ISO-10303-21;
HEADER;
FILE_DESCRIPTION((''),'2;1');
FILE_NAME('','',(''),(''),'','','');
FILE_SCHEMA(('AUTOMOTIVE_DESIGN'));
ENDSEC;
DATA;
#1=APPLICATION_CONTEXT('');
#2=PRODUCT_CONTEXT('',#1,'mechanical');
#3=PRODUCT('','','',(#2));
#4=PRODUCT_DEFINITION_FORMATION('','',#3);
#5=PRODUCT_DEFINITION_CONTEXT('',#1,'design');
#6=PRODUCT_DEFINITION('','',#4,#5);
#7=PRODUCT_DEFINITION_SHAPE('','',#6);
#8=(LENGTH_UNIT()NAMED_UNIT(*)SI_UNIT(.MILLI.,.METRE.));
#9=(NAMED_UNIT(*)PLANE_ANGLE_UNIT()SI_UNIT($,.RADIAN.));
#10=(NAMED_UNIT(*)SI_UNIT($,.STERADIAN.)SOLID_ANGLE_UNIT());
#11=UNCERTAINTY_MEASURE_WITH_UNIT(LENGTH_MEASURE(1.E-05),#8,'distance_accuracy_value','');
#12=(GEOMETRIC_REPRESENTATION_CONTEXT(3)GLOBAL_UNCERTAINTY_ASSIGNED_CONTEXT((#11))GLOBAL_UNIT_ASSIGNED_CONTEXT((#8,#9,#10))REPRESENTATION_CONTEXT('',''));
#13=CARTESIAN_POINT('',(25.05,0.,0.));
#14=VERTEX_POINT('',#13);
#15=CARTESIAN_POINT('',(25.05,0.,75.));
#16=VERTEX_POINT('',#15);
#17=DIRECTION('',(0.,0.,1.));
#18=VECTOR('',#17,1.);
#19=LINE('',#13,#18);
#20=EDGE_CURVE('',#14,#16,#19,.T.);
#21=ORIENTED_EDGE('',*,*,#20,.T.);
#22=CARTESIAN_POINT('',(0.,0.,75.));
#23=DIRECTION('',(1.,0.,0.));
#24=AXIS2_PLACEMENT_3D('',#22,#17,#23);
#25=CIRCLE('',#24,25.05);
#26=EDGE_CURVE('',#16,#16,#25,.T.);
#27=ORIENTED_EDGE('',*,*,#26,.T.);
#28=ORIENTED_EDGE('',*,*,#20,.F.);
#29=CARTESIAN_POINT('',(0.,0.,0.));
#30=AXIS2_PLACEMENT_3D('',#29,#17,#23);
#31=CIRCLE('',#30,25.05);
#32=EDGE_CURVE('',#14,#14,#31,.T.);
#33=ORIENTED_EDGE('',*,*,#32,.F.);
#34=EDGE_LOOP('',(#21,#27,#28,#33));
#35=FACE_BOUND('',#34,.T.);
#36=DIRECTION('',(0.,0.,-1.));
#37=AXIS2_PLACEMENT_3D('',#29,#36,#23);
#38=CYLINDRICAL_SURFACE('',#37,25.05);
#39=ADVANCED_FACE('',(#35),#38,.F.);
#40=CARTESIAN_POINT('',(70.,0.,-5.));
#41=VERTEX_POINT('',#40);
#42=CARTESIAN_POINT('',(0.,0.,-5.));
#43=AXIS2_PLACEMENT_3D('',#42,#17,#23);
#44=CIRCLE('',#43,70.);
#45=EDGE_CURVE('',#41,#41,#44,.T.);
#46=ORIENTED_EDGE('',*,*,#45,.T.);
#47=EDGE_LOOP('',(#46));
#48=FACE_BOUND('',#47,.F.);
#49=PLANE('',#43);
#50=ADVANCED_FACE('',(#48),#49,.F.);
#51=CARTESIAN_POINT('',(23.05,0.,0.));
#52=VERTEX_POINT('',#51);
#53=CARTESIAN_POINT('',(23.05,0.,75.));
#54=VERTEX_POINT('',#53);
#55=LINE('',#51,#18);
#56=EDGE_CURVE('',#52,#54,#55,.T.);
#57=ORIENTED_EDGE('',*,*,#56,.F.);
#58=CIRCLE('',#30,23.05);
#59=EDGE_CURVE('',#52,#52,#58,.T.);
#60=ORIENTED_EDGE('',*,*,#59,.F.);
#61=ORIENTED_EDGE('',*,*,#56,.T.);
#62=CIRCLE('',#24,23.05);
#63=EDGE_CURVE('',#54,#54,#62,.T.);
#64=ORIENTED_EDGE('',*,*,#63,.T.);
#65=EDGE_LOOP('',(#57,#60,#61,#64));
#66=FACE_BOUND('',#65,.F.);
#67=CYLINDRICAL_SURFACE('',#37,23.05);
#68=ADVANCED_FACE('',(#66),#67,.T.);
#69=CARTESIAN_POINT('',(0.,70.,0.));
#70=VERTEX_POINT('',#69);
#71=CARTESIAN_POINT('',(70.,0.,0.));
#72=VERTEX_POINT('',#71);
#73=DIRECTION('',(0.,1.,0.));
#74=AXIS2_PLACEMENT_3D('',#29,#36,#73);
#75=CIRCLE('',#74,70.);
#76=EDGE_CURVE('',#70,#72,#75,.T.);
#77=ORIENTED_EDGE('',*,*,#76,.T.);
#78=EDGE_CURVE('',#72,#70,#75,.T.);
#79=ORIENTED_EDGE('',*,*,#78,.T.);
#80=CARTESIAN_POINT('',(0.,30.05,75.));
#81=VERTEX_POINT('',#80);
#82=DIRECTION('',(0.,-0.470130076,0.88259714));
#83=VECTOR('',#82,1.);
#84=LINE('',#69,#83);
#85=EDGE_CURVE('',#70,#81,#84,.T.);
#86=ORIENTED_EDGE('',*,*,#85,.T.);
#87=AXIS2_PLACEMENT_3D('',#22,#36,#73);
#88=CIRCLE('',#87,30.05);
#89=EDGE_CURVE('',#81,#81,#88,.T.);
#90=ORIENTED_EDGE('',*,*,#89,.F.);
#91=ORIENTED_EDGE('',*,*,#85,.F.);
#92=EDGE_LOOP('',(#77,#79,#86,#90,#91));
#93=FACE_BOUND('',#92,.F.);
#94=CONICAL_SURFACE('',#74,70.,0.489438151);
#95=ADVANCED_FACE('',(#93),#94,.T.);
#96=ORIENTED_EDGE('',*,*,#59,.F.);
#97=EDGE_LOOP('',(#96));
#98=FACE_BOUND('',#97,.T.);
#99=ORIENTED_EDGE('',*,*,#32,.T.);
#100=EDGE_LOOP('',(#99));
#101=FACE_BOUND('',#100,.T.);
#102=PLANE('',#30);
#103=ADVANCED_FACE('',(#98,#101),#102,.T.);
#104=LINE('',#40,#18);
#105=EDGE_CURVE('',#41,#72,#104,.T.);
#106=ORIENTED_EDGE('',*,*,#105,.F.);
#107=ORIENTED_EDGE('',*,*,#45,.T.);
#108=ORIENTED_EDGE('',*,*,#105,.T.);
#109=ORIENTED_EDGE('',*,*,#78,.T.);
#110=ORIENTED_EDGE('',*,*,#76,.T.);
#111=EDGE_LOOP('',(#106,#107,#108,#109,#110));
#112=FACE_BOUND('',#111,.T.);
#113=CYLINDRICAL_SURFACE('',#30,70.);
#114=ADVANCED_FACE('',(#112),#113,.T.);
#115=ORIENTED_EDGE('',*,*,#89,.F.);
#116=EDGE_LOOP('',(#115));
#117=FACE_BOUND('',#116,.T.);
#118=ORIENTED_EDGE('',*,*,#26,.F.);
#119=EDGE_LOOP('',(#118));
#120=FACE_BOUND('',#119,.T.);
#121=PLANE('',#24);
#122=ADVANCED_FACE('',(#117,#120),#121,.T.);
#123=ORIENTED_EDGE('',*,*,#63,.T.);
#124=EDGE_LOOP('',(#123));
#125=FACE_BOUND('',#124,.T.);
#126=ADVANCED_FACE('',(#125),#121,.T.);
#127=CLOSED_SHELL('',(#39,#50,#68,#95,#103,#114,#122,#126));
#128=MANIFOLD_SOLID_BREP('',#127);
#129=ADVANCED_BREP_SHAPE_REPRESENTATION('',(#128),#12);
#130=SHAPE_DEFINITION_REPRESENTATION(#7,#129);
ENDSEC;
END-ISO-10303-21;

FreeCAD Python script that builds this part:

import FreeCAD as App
import Part
import Sketcher

V = App.Vector
Q = App.Units.Quantity


def add_polygon(sketch, points):
    """Adds a closed chain of lines whose ends are joined by coincident constraints."""
    first, n = sketch.GeometryCount, len(points)
    for a, b in zip(points, points[1:] + points[:1]):
        sketch.addGeometry(Part.LineSegment(App.Vector(*a, 0), App.Vector(*b, 0)), False)
    for i in range(n):
        sketch.addConstraint(Sketcher.Constraint("Coincident", first + i, 2, first + (i + 1) % n, 1))

doc = App.newDocument("Part")
body = doc.addObject("PartDesign::Body", "Body")

sketch1 = body.newObject("Sketcher::SketchObject", "Sketch")
sketch1.AttachmentSupport = (doc.getObject("XY_Plane"), [""])
sketch1.MapMode = "FlatFace"
sketch1.addGeometry(Part.Circle(V(0, 0, 0), V(0, 0, 1), 70), False)
sketch1.addConstraint([
    Sketcher.Constraint("Coincident", 0, 3, -1, 1),
    Sketcher.Constraint("Diameter", 0, Q("140 mm")),
])
pad1 = body.newObject("PartDesign::Pad", "Pad")
pad1.Profile = sketch1
pad1.Length = 5
pad1.Reversed = True

sketch2 = body.newObject("Sketcher::SketchObject", "Sketch001")
sketch2.AttachmentSupport = (doc.getObject("XY_Plane"), [""])
sketch2.MapMode = "FlatFace"
sketch2.addGeometry([
    Part.Circle(V(0, 0, 0), V(0, 0, 1), 70),
    Part.Circle(V(0, 0, 0), V(0, 0, 1), 25.05),
    Part.Circle(V(0, 0, 0), V(0, 0, 1), 23.05),
], False)
sketch2.addConstraint([
    Sketcher.Constraint("Coincident", 0, 3, -1, 1),
    Sketcher.Constraint("Coincident", 1, 3, -1, 1),
    Sketcher.Constraint("Coincident", 2, 3, -1, 1),
    Sketcher.Constraint("Diameter", 0, Q("140 mm")),
    Sketcher.Constraint("Diameter", 1, Q("50.1 mm")),
    Sketcher.Constraint("Diameter", 2, Q("46.1 mm")),
])
pad2 = body.newObject("PartDesign::Pad", "Pad001")
pad2.Profile = sketch2
pad2.Length = 75

sketch3 = body.newObject("Sketcher::SketchObject", "Sketch002")
sketch3.AttachmentSupport = (doc.getObject("YZ_Plane"), [""])
sketch3.MapMode = "FlatFace"
add_polygon(sketch3, [(70, 75), (30.05, 75), (70, 0)])
sketch3.addConstraint([
    Sketcher.Constraint("Horizontal", 0),
    Sketcher.Constraint("Vertical", 2),
    Sketcher.Constraint("PointOnObject", 1, 2, -1),
    Sketcher.Constraint("DistanceY", 2, 1, 2, 2, Q("75 mm")),
    Sketcher.Constraint("DistanceX", -1, 1, 1, 2, Q("70 mm")),
    Sketcher.Constraint("DistanceX", 0, 2, 0, 1, Q("39.95 mm")),
])
groove = body.newObject("PartDesign::Groove", "Groove")
groove.Profile = sketch3
groove.ReferenceAxis = (sketch3, ["V_Axis"])
groove.Angle = 360

doc.recompute()
